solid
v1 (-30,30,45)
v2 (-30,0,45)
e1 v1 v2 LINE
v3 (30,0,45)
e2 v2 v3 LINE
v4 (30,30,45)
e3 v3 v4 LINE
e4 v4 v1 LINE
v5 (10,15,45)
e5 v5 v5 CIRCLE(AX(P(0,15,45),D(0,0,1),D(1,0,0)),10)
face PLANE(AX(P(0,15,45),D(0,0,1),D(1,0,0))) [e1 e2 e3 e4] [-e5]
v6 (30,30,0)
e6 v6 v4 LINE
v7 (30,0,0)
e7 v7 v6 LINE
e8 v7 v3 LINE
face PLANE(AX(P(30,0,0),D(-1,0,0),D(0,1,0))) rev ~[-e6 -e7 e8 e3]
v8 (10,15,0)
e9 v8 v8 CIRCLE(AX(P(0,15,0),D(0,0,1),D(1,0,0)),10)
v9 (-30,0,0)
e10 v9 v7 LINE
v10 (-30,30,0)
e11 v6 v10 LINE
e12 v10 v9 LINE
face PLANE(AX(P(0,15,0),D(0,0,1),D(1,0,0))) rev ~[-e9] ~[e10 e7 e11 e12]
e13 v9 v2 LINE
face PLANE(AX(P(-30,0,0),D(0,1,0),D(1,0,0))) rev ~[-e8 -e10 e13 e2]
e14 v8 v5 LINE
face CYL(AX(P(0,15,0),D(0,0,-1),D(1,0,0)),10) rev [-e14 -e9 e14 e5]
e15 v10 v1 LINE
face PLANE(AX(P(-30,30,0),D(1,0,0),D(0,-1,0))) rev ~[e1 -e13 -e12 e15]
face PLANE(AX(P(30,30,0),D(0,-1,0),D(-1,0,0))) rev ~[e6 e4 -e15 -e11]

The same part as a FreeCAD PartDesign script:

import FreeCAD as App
import Part
import Sketcher

V = App.Vector
Q = App.Units.Quantity


def add_polygon(sketch, points):
    """Adds a closed chain of lines whose ends are joined by coincident constraints."""
    first, n = sketch.GeometryCount, len(points)
    for a, b in zip(points, points[1:] + points[:1]):
        sketch.addGeometry(Part.LineSegment(App.Vector(*a, 0), App.Vector(*b, 0)), False)
    for i in range(n):
        sketch.addConstraint(Sketcher.Constraint("Coincident", first + i, 2, first + (i + 1) % n, 1))

doc = App.newDocument("Part")
body = doc.addObject("PartDesign::Body", "Body")

# Sketch on XY plane
sketch1 = body.newObject("Sketcher::SketchObject", "Sketch")
sketch1.AttachmentSupport = (doc.getObject("XY_Plane"), [""])
sketch1.MapMode = "FlatFace"
add_polygon(sketch1, [(-30, 30), (-30, 0), (30, 0), (30, 30)])  # lines 0-3
sketch1.addGeometry(Part.Circle(V(0, 15, 0), V(0, 0, 1), 10), False)  # 4
sketch1.addConstraint([
    Sketcher.Constraint("Vertical", 0),
    Sketcher.Constraint("Horizontal", 1),
    Sketcher.Constraint("Vertical", 2),
    Sketcher.Constraint("Horizontal", 3),
    Sketcher.Constraint("Symmetric", 0, 2, 1, 2, -1, 1),
    Sketcher.Constraint("PointOnObject", 4, 3, -2),
    Sketcher.Constraint("Diameter", 4, Q("20 mm")),
    Sketcher.Constraint("DistanceX", 1, 1, 1, 2, Q("60 mm")),
    Sketcher.Constraint("DistanceY", 0, 2, 0, 1, Q("30 mm")),
    Sketcher.Constraint("DistanceY", -1, 1, 4, 3, Q("15 mm")),
])
pad1 = body.newObject("PartDesign::Pad", "Pad")
pad1.Profile = sketch1
pad1.Length = 45

doc.recompute()
